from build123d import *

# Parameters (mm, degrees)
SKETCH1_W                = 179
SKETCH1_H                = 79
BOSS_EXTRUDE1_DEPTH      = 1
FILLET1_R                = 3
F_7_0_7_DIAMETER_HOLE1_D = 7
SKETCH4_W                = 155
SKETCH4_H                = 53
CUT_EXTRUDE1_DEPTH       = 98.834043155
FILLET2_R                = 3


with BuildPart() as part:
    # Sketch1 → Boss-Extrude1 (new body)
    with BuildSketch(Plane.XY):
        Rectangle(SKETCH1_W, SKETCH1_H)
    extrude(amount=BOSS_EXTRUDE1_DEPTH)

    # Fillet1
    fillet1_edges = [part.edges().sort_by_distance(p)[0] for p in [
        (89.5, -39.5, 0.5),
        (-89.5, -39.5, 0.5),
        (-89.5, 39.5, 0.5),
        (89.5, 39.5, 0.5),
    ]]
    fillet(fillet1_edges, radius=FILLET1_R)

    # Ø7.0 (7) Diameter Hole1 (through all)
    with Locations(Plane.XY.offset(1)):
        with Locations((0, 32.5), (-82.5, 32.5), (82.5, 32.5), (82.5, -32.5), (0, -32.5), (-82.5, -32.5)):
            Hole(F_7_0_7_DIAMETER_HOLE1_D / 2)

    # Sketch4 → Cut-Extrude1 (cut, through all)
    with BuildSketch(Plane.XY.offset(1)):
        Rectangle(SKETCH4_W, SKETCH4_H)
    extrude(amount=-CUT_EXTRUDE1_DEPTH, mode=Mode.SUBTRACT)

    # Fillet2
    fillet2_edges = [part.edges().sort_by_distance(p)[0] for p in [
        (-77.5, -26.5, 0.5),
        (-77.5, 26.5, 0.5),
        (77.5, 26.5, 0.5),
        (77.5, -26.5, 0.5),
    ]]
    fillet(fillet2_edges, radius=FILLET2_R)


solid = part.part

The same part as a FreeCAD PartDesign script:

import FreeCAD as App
import Part
import Sketcher
from FreeCAD import Vector
Q = App.Units.Quantity


def edges_at(feature, points):
    """Names of the edges that pass closest to the given points."""
    edges = feature.Shape.Edges
    near = lambda p: min(range(len(edges)), key=lambda i: edges[i].distToShape(Part.Vertex(*p))[0])
    return sorted({f"Edge{near(p) + 1}" for p in points})


def add_polygon(sketch, points):
    """Adds a closed chain of lines whose ends are joined by coincident constraints."""
    first, n = sketch.GeometryCount, len(points)
    for a, b in zip(points, points[1:] + points[:1]):
        sketch.addGeometry(Part.LineSegment(App.Vector(*a, 0), App.Vector(*b, 0)), False)
    for i in range(n):
        sketch.addConstraint(Sketcher.Constraint("Coincident", first + i, 2, first + (i + 1) % n, 1))

doc = App.newDocument("Part")
body = doc.addObject("PartDesign::Body", "Body")

# Sketch on XY plane
sketch1 = body.newObject("Sketcher::SketchObject", "Sketch")
sketch1.AttachmentSupport = (doc.getObject("XY_Plane"), [""])
sketch1.MapMode = "FlatFace"
add_polygon(sketch1, [(-89.5, 39.5), (-89.5, -39.5), (89.5, -39.5), (89.5, 39.5)])  # lines 0-3
sketch1.addConstraint([
    Sketcher.Constraint("Vertical", 0),
    Sketcher.Constraint("Horizontal", 1),
    Sketcher.Constraint("Vertical", 2),
    Sketcher.Constraint("Horizontal", 3),
    Sketcher.Constraint("Symmetric", 0, 2, 2, 2, -1, 1),
    Sketcher.Constraint("DistanceX", 1, 1, 1, 2, Q("179 mm")),
    Sketcher.Constraint("DistanceY", 0, 2, 0, 1, Q("79 mm")),
])
pad1 = body.newObject("PartDesign::Pad", "Pad")
pad1.Profile = sketch1
pad1.Length = 1
doc.recompute()

fillet = body.newObject("PartDesign::Fillet", "Fillet")
fillet.Base = (pad1, edges_at(pad1, [
    (89.5, -39.5, 0.5),
    (-89.5, -39.5, 0.5),
    (-89.5, 39.5, 0.5),
    (89.5, 39.5, 0.5),
]))
fillet.Radius = 3

# Sketch on XY plane
sketch2 = body.newObject("Sketcher::SketchObject", "Sketch001")
sketch2.AttachmentSupport = (doc.getObject("XY_Plane"), [""])
sketch2.MapMode = "FlatFace"
sketch2.AttachmentOffset = App.Placement(Vector(0, 0, 1), App.Rotation())
sketch2.addGeometry([
    Part.Circle(Vector(0, 32.5, 0), Vector(0, 0, 1), 3.5),  # 0
    Part.Circle(Vector(-82.5, 32.5, 0), Vector(0, 0, 1), 3.5),  # 1
    Part.Circle(Vector(82.5, 32.5, 0), Vector(0, 0, 1), 3.5),  # 2
    Part.Circle(Vector(82.5, -32.5, 0), Vector(0, 0, 1), 3.5),  # 3
    Part.Circle(Vector(0, -32.5, 0), Vector(0, 0, 1), 3.5),  # 4
    Part.Circle(Vector(-82.5, -32.5, 0), Vector(0, 0, 1), 3.5),  # 5
], False)
sketch2.addConstraint([
    Sketcher.Constraint("Equal", 0, 1),
    Sketcher.Constraint("Equal", 1, 2),
    Sketcher.Constraint("Equal", 2, 3),
    Sketcher.Constraint("Equal", 3, 4),
    Sketcher.Constraint("Equal", 4, 5),
    Sketcher.Constraint("Symmetric", 1, 3, 3, 3, -1, 1),
    Sketcher.Constraint("Symmetric", 0, 3, 4, 3, -1, 1),
    Sketcher.Constraint("Symmetric", 2, 3, 5, 3, -1, 1),
    Sketcher.Constraint("Symmetric", 1, 3, 2, 3, -2),
    Sketcher.Constraint("PointOnObject", 0, 3, -2),
    Sketcher.Constraint("Horizontal", 0, 3, 1, 3),
    Sketcher.Constraint("Diameter", 0, Q("7 mm")),
    Sketcher.Constraint("DistanceX", 1, 3, 2, 3, Q("165 mm")),
    Sketcher.Constraint("DistanceY", 3, 3, 2, 3, Q("65 mm")),
])
doc.recompute()
hole = body.newObject("PartDesign::Hole", "Hole")
hole.Profile = sketch2
hole.ThreadType = "None"
hole.Diameter = 7
hole.DepthType = "ThroughAll"

# Sketch on XY plane
sketch3 = body.newObject("Sketcher::SketchObject", "Sketch002")
sketch3.AttachmentSupport = (doc.getObject("XY_Plane"), [""])
sketch3.MapMode = "FlatFace"
sketch3.AttachmentOffset = App.Placement(Vector(0, 0, 1), App.Rotation())
add_polygon(sketch3, [(-77.5, 26.5), (-77.5, -26.5), (77.5, -26.5), (77.5, 26.5)])  # lines 0-3
sketch3.addConstraint([
    Sketcher.Constraint("Vertical", 0),
    Sketcher.Constraint("Horizontal", 1),
    Sketcher.Constraint("Vertical", 2),
    Sketcher.Constraint("Horizontal", 3),
    Sketcher.Constraint("Symmetric", 0, 2, 2, 2, -1, 1),
    Sketcher.Constraint("DistanceX", 1, 1, 1, 2, Q("155 mm")),
    Sketcher.Constraint("DistanceY", 0, 2, 0, 1, Q("53 mm")),
])
pocket1 = body.newObject("PartDesign::Pocket", "Pocket")
pocket1.Profile = sketch3
pocket1.Type = "ThroughAll"
doc.recompute()

fillet2 = body.newObject("PartDesign::Fillet", "Fillet001")
fillet2.Base = (pocket1, edges_at(pocket1, [
    (-77.5, -26.5, 0.5),
    (-77.5, 26.5, 0.5),
    (77.5, 26.5, 0.5),
    (77.5, -26.5, 0.5),
]))
fillet2.Radius = 3

doc.recompute()
